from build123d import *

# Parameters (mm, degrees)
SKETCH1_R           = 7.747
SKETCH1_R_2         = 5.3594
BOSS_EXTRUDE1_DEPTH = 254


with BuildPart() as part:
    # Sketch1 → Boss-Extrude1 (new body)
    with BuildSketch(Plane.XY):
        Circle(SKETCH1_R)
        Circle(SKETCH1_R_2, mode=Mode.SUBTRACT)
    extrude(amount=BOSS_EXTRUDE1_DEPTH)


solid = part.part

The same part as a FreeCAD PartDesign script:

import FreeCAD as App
import Part
import Sketcher
from FreeCAD import Vector
Q = App.Units.Quantity

doc = App.newDocument("Part")
params = doc.addObject("Spreadsheet::Sheet", "Params")
for row, (alias, value) in enumerate([
    ("sketch1_diameter", "0.61 in"),
    ("sketch1_diameter2", "0.422 in"),
    ("pad1_length", "10 in"),
], start=1):
    params.set(f"A{row}", alias)
    params.set(f"B{row}", "=" + value)
    params.setAlias(f"B{row}", alias)

body = doc.addObject("PartDesign::Body", "Body")

# Sketch on XY plane
sketch1 = doc.addObject("Sketcher::SketchObject", "Sketch")
body.addObject(sketch1)
sketch1.AttachmentSupport = (doc.XY_Plane, [""])
sketch1.MapMode = "FlatFace"
sketch1.addGeometry([
    Part.Circle(Vector(0, 0, 0), Vector(0, 0, 1), 8),
    Part.Circle(Vector(0, 0, 0), Vector(0, 0, 1), 5),
], False)
sketch1.addConstraint([
    Sketcher.Constraint("Coincident", 0, 3, -1, 1),
    Sketcher.Constraint("Coincident", 1, 3, -1, 1),
    Sketcher.Constraint("Diameter", 0, Q("0.61 in")),
    Sketcher.Constraint("Diameter", 1, Q("0.422 in")),
])
sketch1.setExpression("Constraints[2]", "Params.sketch1_diameter")
sketch1.setExpression("Constraints[3]", "Params.sketch1_diameter2")
pad1 = doc.addObject("PartDesign::Pad", "Pad")
body.addObject(pad1)
pad1.Profile = sketch1
pad1.setExpression("Length", "Params.pad1_length")

doc.recompute()
